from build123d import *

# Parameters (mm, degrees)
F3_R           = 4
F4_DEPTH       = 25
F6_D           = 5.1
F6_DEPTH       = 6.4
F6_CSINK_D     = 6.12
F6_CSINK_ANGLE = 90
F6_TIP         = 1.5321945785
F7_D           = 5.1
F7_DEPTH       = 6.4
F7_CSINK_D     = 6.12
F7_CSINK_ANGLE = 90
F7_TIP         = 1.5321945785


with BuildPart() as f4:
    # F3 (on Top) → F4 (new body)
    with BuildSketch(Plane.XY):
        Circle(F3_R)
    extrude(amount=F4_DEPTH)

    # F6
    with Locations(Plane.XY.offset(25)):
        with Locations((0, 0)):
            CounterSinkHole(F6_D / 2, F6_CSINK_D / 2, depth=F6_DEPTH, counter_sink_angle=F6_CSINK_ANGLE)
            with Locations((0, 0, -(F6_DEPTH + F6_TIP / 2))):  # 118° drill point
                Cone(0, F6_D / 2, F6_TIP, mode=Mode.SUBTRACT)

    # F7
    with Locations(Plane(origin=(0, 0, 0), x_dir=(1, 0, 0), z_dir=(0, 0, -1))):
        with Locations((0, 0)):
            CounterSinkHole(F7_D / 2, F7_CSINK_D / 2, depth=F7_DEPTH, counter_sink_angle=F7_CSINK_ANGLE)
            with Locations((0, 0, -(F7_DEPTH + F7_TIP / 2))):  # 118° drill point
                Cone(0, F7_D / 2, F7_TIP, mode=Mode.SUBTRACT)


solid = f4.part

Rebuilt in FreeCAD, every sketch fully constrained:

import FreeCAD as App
import Part
import Sketcher
Q = App.Units.Quantity

doc = App.newDocument("Part")
params = doc.addObject("Spreadsheet::Sheet", "Params")
for row, (alias, value) in enumerate([
    ("sketch1_diameter", "8 mm"),
    ("pad1_length", "25 mm"),
    ("sketch2_diameter", "5.1 mm"),
    ("hole_diameter", "5.1 mm"),
    ("hole_depth", "6.4 mm"),
    ("hole_csink_diameter", "6.12 mm"),
    ("sketch3_diameter", "5.1 mm"),
    ("hole2_diameter", "5.1 mm"),
    ("hole2_depth", "6.4 mm"),
    ("hole2_csink_diameter", "6.12 mm"),
], start=1):
    params.set(f"A{row}", alias)
    params.set(f"B{row}", "=" + value)
    params.setAlias(f"B{row}", alias)

body = doc.addObject("PartDesign::Body", "Body")

sketch1 = doc.addObject("Sketcher::SketchObject", "Sketch")
body.addObject(sketch1)
sketch1.AttachmentSupport = (doc.XY_Plane, [""])
sketch1.MapMode = "FlatFace"
sketch1.addGeometry(Part.Circle(App.Vector(0, 0, 0), App.Vector(0, 0, 1), 4), False)
sketch1.addConstraint([
    Sketcher.Constraint("Coincident", 0, 3, -1, 1),
    Sketcher.Constraint("Diameter", 0, Q("8 mm")),
])
sketch1.setExpression("Constraints[1]", "Params.sketch1_diameter")
pad1 = doc.addObject("PartDesign::Pad", "Pad")
body.addObject(pad1)
pad1.Profile = sketch1
pad1.setExpression("Length", "Params.pad1_length")

sketch2 = doc.addObject("Sketcher::SketchObject", "Sketch001")
body.addObject(sketch2)
sketch2.AttachmentSupport = (doc.XY_Plane, [""])
sketch2.MapMode = "FlatFace"
sketch2.AttachmentOffset = App.Placement(App.Vector(0, 0, 25), App.Rotation())
sketch2.addGeometry(Part.Circle(App.Vector(0, 0, 0), App.Vector(0, 0, 1), 2.5), False)
sketch2.addConstraint([
    Sketcher.Constraint("Coincident", 0, 3, -1, 1),
    Sketcher.Constraint("Diameter", 0, Q("5.1 mm")),
])
sketch2.setExpression("Constraints[1]", "Params.sketch2_diameter")
doc.recompute()
hole = doc.addObject("PartDesign::Hole", "Hole")
body.addObject(hole)
hole.Profile = sketch2
hole.ThreadType = "None"
hole.setExpression("Diameter", "Params.hole_diameter")
hole.DepthType = "Dimension"
hole.setExpression("Depth", "Params.hole_depth")
hole.DrillPoint = "Angled"
hole.DrillPointAngle = 118
hole.HoleCutType = "Countersink"
hole.setExpression("HoleCutDiameter", "Params.hole_csink_diameter")
hole.HoleCutCountersinkAngle = 90

sketch3 = doc.addObject("Sketcher::SketchObject", "Sketch002")
body.addObject(sketch3)
sketch3.AttachmentSupport = (doc.XY_Plane, [""])
sketch3.MapMode = "FlatFace"
sketch3.addGeometry(Part.Circle(App.Vector(0, 0, 0), App.Vector(0, 0, 1), 2.5), False)
sketch3.addConstraint([
    Sketcher.Constraint("Coincident", 0, 3, -1, 1),
    Sketcher.Constraint("Diameter", 0, Q("5.1 mm")),
])
sketch3.setExpression("Constraints[1]", "Params.sketch3_diameter")
doc.recompute()
hole2 = doc.addObject("PartDesign::Hole", "Hole001")
body.addObject(hole2)
hole2.Profile = sketch3
hole2.ThreadType = "None"
hole2.setExpression("Diameter", "Params.hole2_diameter")
hole2.DepthType = "Dimension"
hole2.setExpression("Depth", "Params.hole2_depth")
hole2.DrillPoint = "Angled"
hole2.DrillPointAngle = 118
hole2.HoleCutType = "Countersink"
hole2.setExpression("HoleCutDiameter", "Params.hole2_csink_diameter")
hole2.HoleCutCountersinkAngle = 90
hole2.Reversed = True

doc.recompute()
